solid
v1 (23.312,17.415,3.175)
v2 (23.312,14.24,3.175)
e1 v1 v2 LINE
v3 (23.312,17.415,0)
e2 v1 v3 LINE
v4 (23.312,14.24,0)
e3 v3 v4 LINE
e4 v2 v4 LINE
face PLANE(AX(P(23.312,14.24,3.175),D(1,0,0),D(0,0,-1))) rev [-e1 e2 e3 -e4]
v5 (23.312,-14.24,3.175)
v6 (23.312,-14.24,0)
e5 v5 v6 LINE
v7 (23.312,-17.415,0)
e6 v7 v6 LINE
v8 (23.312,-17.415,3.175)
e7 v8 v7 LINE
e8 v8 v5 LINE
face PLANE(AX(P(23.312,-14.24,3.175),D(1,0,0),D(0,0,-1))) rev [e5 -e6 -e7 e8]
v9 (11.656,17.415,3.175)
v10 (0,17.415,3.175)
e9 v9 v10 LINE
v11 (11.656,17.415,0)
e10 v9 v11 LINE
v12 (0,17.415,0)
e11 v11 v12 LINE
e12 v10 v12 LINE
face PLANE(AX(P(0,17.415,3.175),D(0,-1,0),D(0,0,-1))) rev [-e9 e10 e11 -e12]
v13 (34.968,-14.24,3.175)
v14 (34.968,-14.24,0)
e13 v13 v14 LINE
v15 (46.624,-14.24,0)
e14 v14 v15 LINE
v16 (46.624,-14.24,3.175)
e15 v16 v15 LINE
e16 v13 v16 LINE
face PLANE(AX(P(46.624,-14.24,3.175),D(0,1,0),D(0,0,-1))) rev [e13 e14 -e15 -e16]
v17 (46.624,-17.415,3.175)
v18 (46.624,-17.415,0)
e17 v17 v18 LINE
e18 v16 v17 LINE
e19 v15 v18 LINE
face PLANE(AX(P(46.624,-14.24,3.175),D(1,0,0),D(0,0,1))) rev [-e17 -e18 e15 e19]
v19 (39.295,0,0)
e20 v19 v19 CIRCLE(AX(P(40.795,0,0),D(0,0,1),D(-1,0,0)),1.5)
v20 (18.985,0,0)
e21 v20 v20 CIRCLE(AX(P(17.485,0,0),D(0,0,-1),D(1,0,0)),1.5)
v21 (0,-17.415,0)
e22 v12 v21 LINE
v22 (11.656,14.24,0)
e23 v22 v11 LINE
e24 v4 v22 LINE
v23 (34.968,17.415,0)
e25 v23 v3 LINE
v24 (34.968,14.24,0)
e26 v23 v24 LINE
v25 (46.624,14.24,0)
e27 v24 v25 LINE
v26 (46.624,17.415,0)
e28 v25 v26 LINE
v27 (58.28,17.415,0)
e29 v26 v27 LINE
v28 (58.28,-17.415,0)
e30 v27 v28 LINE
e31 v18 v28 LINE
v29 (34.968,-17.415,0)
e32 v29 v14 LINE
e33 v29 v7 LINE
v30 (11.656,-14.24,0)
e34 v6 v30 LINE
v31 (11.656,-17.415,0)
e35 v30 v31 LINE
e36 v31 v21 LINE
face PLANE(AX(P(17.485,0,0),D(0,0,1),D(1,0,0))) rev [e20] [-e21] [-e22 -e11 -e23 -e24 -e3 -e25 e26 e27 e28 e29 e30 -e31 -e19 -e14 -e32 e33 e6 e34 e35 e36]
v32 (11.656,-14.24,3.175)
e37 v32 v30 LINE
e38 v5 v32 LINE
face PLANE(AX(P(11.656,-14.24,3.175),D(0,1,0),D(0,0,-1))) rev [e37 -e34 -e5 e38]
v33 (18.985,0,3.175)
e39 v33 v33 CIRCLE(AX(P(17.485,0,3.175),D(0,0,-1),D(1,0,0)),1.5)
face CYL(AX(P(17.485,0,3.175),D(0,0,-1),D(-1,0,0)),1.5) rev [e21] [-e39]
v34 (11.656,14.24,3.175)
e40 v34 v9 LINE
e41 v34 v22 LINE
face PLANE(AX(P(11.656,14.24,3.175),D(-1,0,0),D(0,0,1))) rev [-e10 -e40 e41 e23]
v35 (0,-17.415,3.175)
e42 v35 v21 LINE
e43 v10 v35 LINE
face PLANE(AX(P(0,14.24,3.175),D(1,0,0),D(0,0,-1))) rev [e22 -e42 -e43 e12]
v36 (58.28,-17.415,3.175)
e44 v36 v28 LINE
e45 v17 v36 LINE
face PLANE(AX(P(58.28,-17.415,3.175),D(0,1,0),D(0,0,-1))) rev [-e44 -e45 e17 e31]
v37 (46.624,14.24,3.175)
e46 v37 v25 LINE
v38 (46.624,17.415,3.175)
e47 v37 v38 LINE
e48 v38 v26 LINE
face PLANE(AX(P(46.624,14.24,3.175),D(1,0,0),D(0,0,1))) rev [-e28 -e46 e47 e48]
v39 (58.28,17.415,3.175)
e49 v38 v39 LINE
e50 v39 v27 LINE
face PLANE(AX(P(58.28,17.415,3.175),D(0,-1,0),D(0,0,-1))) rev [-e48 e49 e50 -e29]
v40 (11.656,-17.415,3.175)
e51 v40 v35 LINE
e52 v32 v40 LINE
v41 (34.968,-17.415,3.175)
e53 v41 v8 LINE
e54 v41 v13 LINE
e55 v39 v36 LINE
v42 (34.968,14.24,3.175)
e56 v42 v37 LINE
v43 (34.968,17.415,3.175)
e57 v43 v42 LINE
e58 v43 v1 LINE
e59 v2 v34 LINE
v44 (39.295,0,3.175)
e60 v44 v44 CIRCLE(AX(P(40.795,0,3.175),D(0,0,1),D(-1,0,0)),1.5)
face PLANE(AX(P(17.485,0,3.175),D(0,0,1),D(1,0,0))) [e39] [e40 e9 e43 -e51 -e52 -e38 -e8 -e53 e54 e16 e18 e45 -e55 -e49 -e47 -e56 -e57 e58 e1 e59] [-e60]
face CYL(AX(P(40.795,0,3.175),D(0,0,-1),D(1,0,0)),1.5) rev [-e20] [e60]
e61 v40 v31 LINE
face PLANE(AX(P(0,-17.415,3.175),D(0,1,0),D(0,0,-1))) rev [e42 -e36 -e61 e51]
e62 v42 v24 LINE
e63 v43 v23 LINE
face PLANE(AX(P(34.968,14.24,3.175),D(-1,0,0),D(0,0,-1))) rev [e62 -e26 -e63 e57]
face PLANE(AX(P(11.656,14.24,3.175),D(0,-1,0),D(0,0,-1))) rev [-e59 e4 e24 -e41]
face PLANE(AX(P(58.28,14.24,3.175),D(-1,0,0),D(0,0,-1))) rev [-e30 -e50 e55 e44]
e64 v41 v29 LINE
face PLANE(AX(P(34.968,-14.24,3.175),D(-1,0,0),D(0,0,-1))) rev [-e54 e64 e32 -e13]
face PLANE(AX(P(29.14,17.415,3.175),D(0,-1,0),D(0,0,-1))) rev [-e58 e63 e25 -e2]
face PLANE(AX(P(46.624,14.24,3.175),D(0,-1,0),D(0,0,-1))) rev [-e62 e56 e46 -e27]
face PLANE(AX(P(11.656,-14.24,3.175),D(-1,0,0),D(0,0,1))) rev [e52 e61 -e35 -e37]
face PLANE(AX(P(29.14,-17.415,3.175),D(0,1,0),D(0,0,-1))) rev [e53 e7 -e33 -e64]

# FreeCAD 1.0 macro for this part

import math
import FreeCAD as App
import Part
import Sketcher

V = App.Vector

doc = App.newDocument("Part")
body = doc.addObject("PartDesign::Body", "Body")

# Sketch on XY plane
sketch1 = body.newObject("Sketcher::SketchObject", "Sketch")
sketch1.AttachmentSupport = (doc.getObject("XY_Plane"), [""])
sketch1.MapMode = "FlatFace"
sketch1.addGeometry([
    Part.LineSegment(V(18.985, 0, 0), V(29.14, 0, 0)),  # 0
    Part.LineSegment(V(29.14, 0, 0), V(29.14, 17.415, 0)),  # 1
    Part.LineSegment(V(29.14, 17.415, 0), V(23.312, 17.415, 0)),  # 2
    Part.LineSegment(V(23.312, 17.415, 0), V(23.312, 14.24, 0)),  # 3
    Part.LineSegment(V(23.312, 14.24, 0), V(11.656, 14.24, 0)),  # 4
    Part.LineSegment(V(11.656, 14.24, 0), V(11.656, 17.415, 0)),  # 5
    Part.LineSegment(V(11.656, 17.415, 0), V(0, 17.415, 0)),  # 6
    Part.LineSegment(V(0, 17.415, 0), V(0, 0, 0)),  # 7
    Part.LineSegment(V(0, 0, 0), V(15.985, 0, 0)),  # 8
    Part.ArcOfCircle(Part.Circle(V(17.485, 0, 0), V(0, 0, 1), 1.5), math.radians(0), math.radians(180)),  # 9
], False)
sketch1.addConstraint([
    Sketcher.Constraint("Coincident", 0, 2, 1, 1),
    Sketcher.Constraint("Coincident", 1, 2, 2, 1),
    Sketcher.Constraint("Coincident", 2, 2, 3, 1),
    Sketcher.Constraint("Coincident", 3, 2, 4, 1),
    Sketcher.Constraint("Coincident", 4, 2, 5, 1),
    Sketcher.Constraint("Coincident", 5, 2, 6, 1),
    Sketcher.Constraint("Coincident", 6, 2, 7, 1),
    Sketcher.Constraint("Coincident", 7, 2, 8, 1),
    Sketcher.Constraint("Coincident", 8, 2, 9, 2),
    Sketcher.Constraint("Coincident", 9, 1, 0, 1),
    Sketcher.Constraint("Horizontal", 0),
    Sketcher.Constraint("Vertical", 1),
    Sketcher.Constraint("Horizontal", 2),
    Sketcher.Constraint("Vertical", 3),
    Sketcher.Constraint("Horizontal", 4),
    Sketcher.Constraint("Vertical", 5),
    Sketcher.Constraint("Horizontal", 6),
    Sketcher.Constraint("Vertical", 7),
    Sketcher.Constraint("Horizontal", 8),
    Sketcher.Constraint("Coincident", 7, 2, -1, 1),
    Sketcher.Constraint("PointOnObject", 9, 3, -1),
    Sketcher.Constraint("PointOnObject", 0, 2, -1),
    Sketcher.Constraint("Horizontal", 2, 2, 5, 2),
    Sketcher.Constraint("Equal", 4, 6),
    Sketcher.Constraint("Radius", 9, 1.5),
    Sketcher.Constraint("DistanceX", 0, 1, 0, 2, 10.155),
    Sketcher.Constraint("DistanceX", 2, 2, 2, 1, 5.828),
    Sketcher.Constraint("DistanceX", 4, 2, 4, 1, 11.656),
    Sketcher.Constraint("DistanceY", 1, 1, 1, 2, 17.415),
    Sketcher.Constraint("DistanceY", 3, 2, 3, 1, 3.175),
])
pad1 = body.newObject("PartDesign::Pad", "Pad")
pad1.Profile = sketch1
pad1.Length = 3.175
body2 = doc.addObject("PartDesign::Body", "Body001")
doc.recompute()

body2.BaseFeature = body
doc.recompute()

mirroring = doc.addObject("Part::Mirroring", "Mirroring")
mirroring.Source = body
mirroring.Base = V(0, 0, 3.175)
mirroring.Normal = V(0, 1, 0)
body3 = doc.addObject("PartDesign::Body", "Body002")
body3.BaseFeature = mirroring
boolean = body2.newObject("PartDesign::Boolean", "Boolean")
boolean.Type = "Fuse"
boolean.addObjects([body3])
doc.recompute()
body4 = doc.addObject("PartDesign::Body", "Body003")
doc.recompute()

body4.BaseFeature = body2
doc.recompute()

mirroring2 = doc.addObject("Part::Mirroring", "Mirroring001")
mirroring2.Source = body2
mirroring2.Base = V(29.14, 14.24, 3.175)
mirroring2.Normal = V(-1, 0, 0)
body5 = doc.addObject("PartDesign::Body", "Body004")
body5.BaseFeature = mirroring2
boolean2 = body4.newObject("PartDesign::Boolean", "Boolean001")
boolean2.Type = "Fuse"
boolean2.addObjects([body5])
doc.recompute()
mirroring.Visibility = False
mirroring2.Visibility = False

doc.recompute()
